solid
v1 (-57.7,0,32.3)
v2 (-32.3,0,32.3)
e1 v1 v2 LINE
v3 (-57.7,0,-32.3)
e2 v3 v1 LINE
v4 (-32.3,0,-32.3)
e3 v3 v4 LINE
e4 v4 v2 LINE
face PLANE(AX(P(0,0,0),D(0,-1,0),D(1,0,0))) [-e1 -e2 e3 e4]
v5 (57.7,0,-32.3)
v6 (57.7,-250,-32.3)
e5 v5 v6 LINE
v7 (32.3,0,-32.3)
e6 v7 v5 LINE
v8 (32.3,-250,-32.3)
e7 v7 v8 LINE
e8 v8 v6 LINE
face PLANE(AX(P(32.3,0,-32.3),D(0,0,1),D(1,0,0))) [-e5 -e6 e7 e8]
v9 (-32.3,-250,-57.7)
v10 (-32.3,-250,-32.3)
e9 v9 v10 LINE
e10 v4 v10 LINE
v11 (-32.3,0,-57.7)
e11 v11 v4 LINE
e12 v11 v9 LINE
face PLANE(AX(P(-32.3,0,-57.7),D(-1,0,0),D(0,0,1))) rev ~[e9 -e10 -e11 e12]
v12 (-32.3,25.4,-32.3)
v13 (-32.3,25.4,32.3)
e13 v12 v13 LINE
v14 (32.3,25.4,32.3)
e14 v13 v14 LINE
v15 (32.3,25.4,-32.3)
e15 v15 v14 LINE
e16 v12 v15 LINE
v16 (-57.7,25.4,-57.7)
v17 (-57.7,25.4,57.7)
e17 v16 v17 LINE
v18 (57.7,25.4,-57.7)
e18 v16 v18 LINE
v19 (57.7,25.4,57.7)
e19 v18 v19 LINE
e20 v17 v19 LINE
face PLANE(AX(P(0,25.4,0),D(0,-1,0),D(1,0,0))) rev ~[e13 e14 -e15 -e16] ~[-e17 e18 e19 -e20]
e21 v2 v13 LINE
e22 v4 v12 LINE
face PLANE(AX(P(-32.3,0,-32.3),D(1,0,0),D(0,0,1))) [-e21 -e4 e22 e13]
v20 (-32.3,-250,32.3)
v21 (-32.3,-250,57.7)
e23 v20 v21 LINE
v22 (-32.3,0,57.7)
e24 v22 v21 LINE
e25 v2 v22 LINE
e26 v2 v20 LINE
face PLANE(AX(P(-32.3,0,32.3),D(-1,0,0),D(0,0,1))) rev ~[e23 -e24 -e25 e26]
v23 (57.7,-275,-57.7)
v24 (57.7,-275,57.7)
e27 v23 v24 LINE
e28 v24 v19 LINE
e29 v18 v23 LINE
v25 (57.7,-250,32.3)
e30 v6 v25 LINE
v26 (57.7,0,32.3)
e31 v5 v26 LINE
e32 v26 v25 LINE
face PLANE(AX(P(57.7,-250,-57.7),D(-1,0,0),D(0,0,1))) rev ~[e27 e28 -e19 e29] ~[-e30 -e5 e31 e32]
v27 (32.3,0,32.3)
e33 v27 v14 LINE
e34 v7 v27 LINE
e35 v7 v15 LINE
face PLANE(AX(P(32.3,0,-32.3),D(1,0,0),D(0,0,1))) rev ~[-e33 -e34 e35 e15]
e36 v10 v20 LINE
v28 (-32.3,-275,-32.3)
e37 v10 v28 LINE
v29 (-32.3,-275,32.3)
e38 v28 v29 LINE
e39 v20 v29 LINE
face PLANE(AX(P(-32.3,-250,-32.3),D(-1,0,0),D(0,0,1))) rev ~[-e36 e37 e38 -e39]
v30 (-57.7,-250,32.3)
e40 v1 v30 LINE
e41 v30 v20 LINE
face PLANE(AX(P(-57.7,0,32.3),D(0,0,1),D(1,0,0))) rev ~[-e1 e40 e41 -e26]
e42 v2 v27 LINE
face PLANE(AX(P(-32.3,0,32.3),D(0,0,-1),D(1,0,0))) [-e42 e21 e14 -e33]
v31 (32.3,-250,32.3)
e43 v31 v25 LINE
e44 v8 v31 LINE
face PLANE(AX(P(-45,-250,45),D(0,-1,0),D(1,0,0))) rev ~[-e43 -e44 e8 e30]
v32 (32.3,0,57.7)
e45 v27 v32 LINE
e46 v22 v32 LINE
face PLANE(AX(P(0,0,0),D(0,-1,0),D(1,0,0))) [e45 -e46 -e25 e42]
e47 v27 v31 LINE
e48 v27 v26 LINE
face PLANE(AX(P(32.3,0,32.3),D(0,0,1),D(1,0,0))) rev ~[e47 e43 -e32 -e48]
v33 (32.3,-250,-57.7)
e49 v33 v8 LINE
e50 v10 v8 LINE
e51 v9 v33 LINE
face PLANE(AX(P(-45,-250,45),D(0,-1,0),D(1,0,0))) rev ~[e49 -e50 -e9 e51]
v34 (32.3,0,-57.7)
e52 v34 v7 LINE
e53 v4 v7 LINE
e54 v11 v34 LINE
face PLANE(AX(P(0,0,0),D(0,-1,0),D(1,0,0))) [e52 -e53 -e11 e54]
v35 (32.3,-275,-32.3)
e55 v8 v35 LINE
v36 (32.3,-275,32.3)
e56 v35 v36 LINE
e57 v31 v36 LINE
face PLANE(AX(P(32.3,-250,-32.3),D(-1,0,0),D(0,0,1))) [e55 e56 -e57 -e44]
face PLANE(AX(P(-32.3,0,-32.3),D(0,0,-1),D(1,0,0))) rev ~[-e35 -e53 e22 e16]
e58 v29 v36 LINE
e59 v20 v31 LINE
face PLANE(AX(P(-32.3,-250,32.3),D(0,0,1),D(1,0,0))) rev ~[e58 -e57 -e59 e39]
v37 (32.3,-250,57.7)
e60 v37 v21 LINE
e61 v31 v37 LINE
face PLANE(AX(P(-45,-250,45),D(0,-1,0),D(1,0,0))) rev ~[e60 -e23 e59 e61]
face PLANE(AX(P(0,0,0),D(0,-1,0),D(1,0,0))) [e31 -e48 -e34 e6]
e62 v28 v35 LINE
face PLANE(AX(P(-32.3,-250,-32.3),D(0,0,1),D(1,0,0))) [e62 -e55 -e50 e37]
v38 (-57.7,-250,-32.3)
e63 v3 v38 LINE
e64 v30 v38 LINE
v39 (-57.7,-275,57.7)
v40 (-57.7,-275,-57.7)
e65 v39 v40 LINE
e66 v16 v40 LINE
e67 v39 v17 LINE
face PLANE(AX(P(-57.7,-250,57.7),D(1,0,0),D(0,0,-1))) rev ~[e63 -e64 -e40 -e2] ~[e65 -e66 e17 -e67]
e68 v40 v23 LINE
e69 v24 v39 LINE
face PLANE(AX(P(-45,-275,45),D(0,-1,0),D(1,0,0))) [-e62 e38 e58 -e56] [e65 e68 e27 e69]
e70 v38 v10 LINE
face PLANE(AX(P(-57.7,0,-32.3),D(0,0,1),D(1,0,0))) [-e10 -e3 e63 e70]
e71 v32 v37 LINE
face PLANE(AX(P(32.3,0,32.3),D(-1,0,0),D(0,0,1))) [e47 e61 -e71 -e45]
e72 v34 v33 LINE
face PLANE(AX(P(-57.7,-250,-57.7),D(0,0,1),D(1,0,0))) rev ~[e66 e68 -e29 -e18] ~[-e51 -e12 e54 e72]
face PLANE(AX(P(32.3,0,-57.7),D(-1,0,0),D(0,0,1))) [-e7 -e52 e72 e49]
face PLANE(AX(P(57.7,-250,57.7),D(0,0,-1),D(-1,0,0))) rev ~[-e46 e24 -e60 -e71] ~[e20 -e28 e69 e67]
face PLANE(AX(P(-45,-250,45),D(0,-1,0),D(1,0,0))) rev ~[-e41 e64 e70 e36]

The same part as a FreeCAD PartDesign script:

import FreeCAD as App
import Part
import Sketcher
from FreeCAD import Vector


def add_polygon(sketch, points):
    """Adds a closed chain of lines whose ends are joined by coincident constraints."""
    first, n = sketch.GeometryCount, len(points)
    for a, b in zip(points, points[1:] + points[:1]):
        sketch.addGeometry(Part.LineSegment(App.Vector(*a, 0), App.Vector(*b, 0)), False)
    for i in range(n):
        sketch.addConstraint(Sketcher.Constraint("Coincident", first + i, 2, first + (i + 1) % n, 1))

doc = App.newDocument("Part")
params = doc.addObject("Spreadsheet::Sheet", "Params")
for row, (alias, value) in enumerate([
    ("sketch1_width", "115.4 mm"),
    ("sketch1_width2", "64.6 mm"),
    ("pad1_length", "25.4 mm"),
    ("sketch2_width", "25.4 mm"),
    ("pad2_length", "250 mm"),
    ("sketch3_width", "115.4 mm"),
    ("sketch3_width2", "64.6 mm"),
    ("pad3_length", "25 mm"),
], start=1):
    params.set(f"A{row}", alias)
    params.set(f"B{row}", "=" + value)
    params.setAlias(f"B{row}", alias)

body = doc.addObject("PartDesign::Body", "Body")

sketch1 = body.newObject("Sketcher::SketchObject", "Sketch")
sketch1.AttachmentSupport = (doc.getObject("XZ_Plane"), [""])
sketch1.MapMode = "FlatFace"
add_polygon(sketch1, [(-58, 58), (-58, -58), (58, -58), (58, 58)])
add_polygon(sketch1, [(32, -32), (-32, -32), (-32, 32), (32, 32)])
sketch1.addConstraint(Sketcher.Constraint("Vertical", 0))
sketch1.addConstraint(Sketcher.Constraint("Horizontal", 1))
sketch1.addConstraint(Sketcher.Constraint("Vertical", 2))
sketch1.addConstraint(Sketcher.Constraint("Horizontal", 3))
sketch1.addConstraint(Sketcher.Constraint("Horizontal", 4))
sketch1.addConstraint(Sketcher.Constraint("Vertical", 5))
sketch1.addConstraint(Sketcher.Constraint("Horizontal", 6))
sketch1.addConstraint(Sketcher.Constraint("Vertical", 7))
sketch1.addConstraint(Sketcher.Constraint("Symmetric", 0, 2, 2, 2, -1, 1))
sketch1.addConstraint(Sketcher.Constraint("Symmetric", 4, 2, 6, 2, -1, 1))
sketch1.addConstraint(Sketcher.Constraint("Equal", 3, 0))
sketch1.addConstraint(Sketcher.Constraint("Equal", 6, 5))
sketch1.addConstraint(Sketcher.Constraint("DistanceX", 1, 1, 1, 2, 115.4))
sketch1.addConstraint(Sketcher.Constraint("DistanceX", 4, 2, 4, 1, 64.6))
sketch1.setExpression("Constraints[20]", "Params.sketch1_width")
sketch1.setExpression("Constraints[21]", "Params.sketch1_width2")
pad1 = body.newObject("PartDesign::Pad", "Pad")
pad1.Profile = sketch1
pad1.setExpression("Length", "Params.pad1_length")
pad1.Reversed = True

sketch2 = body.newObject("Sketcher::SketchObject", "Sketch001")
sketch2.AttachmentSupport = (doc.getObject("XZ_Plane"), [""])
sketch2.MapMode = "FlatFace"
add_polygon(sketch2, [(32, 58), (32, 32), (58, 32), (58, 58)])
add_polygon(sketch2, [(-58, 58), (-58, 32), (-32, 32), (-32, 58)])
add_polygon(sketch2, [(-58, -32), (-58, -58), (-32, -58), (-32, -32)])
add_polygon(sketch2, [(32, -32), (32, -58), (58, -58), (58, -32)])
sketch2.addConstraint(Sketcher.Constraint("Vertical", 0))
sketch2.addConstraint(Sketcher.Constraint("Horizontal", 1))
sketch2.addConstraint(Sketcher.Constraint("Vertical", 2))
sketch2.addConstraint(Sketcher.Constraint("Horizontal", 3))
sketch2.addConstraint(Sketcher.Constraint("Vertical", 4))
sketch2.addConstraint(Sketcher.Constraint("Horizontal", 5))
sketch2.addConstraint(Sketcher.Constraint("Vertical", 6))
sketch2.addConstraint(Sketcher.Constraint("Horizontal", 7))
sketch2.addConstraint(Sketcher.Constraint("Vertical", 8))
sketch2.addConstraint(Sketcher.Constraint("Horizontal", 9))
sketch2.addConstraint(Sketcher.Constraint("Vertical", 10))
sketch2.addConstraint(Sketcher.Constraint("Horizontal", 11))
sketch2.addConstraint(Sketcher.Constraint("Vertical", 12))
sketch2.addConstraint(Sketcher.Constraint("Horizontal", 13))
sketch2.addConstraint(Sketcher.Constraint("Vertical", 14))
sketch2.addConstraint(Sketcher.Constraint("Horizontal", 15))
sketch2.addConstraint(Sketcher.Constraint("Symmetric", 2, 2, 8, 2, -1, 1))
sketch2.addConstraint(Sketcher.Constraint("Symmetric", 0, 2, 10, 2, -1, 1))
sketch2.addConstraint(Sketcher.Constraint("Symmetric", 6, 2, 12, 2, -1, 1))
sketch2.addConstraint(Sketcher.Constraint("Symmetric", 4, 2, 14, 2, -1, 1))
sketch2.addConstraint(Sketcher.Constraint("Symmetric", 1, 2, 4, 2, -2))
sketch2.addConstraint(Sketcher.Constraint("Symmetric", 3, 2, 6, 2, -2))
sketch2.addConstraint(Sketcher.Constraint("Equal", 15, 0))
sketch2.addConstraint(Sketcher.Constraint("DistanceX", 1, 1, 1, 2, 25.4))
sketch2.addConstraint(Sketcher.Constraint("DistanceX", 4, 2, 0, 2, 90.0))
sketch2.addConstraint(Sketcher.Constraint("DistanceY", 8, 2, 4, 2, 90.0))
sketch2.setExpression("Constraints[39]", "Params.sketch2_width")
pad2 = body.newObject("PartDesign::Pad", "Pad001")
pad2.Profile = sketch2
pad2.setExpression("Length", "Params.pad2_length")

sketch3 = body.newObject("Sketcher::SketchObject", "Sketch002")
sketch3.AttachmentSupport = (doc.getObject("XZ_Plane"), [""])
sketch3.MapMode = "FlatFace"
sketch3.AttachmentOffset = App.Placement(Vector(0, 0, 250), App.Rotation())
add_polygon(sketch3, [(-58, 58), (-58, -58), (58, -58), (58, 58)])
add_polygon(sketch3, [(32, -32), (-32, -32), (-32, 32), (32, 32)])
sketch3.addConstraint(Sketcher.Constraint("Vertical", 0))
sketch3.addConstraint(Sketcher.Constraint("Horizontal", 1))
sketch3.addConstraint(Sketcher.Constraint("Vertical", 2))
sketch3.addConstraint(Sketcher.Constraint("Horizontal", 3))
sketch3.addConstraint(Sketcher.Constraint("Horizontal", 4))
sketch3.addConstraint(Sketcher.Constraint("Vertical", 5))
sketch3.addConstraint(Sketcher.Constraint("Horizontal", 6))
sketch3.addConstraint(Sketcher.Constraint("Vertical", 7))
sketch3.addConstraint(Sketcher.Constraint("Symmetric", 0, 2, 2, 2, -1, 1))
sketch3.addConstraint(Sketcher.Constraint("Symmetric", 4, 2, 6, 2, -1, 1))
sketch3.addConstraint(Sketcher.Constraint("Equal", 3, 0))
sketch3.addConstraint(Sketcher.Constraint("Equal", 6, 5))
sketch3.addConstraint(Sketcher.Constraint("DistanceX", 1, 1, 1, 2, 115.4))
sketch3.addConstraint(Sketcher.Constraint("DistanceX", 4, 2, 4, 1, 64.6))
sketch3.setExpression("Constraints[20]", "Params.sketch3_width")
sketch3.setExpression("Constraints[21]", "Params.sketch3_width2")
pad3 = body.newObject("PartDesign::Pad", "Pad002")
pad3.Profile = sketch3
pad3.setExpression("Length", "Params.pad3_length")

doc.recompute()
